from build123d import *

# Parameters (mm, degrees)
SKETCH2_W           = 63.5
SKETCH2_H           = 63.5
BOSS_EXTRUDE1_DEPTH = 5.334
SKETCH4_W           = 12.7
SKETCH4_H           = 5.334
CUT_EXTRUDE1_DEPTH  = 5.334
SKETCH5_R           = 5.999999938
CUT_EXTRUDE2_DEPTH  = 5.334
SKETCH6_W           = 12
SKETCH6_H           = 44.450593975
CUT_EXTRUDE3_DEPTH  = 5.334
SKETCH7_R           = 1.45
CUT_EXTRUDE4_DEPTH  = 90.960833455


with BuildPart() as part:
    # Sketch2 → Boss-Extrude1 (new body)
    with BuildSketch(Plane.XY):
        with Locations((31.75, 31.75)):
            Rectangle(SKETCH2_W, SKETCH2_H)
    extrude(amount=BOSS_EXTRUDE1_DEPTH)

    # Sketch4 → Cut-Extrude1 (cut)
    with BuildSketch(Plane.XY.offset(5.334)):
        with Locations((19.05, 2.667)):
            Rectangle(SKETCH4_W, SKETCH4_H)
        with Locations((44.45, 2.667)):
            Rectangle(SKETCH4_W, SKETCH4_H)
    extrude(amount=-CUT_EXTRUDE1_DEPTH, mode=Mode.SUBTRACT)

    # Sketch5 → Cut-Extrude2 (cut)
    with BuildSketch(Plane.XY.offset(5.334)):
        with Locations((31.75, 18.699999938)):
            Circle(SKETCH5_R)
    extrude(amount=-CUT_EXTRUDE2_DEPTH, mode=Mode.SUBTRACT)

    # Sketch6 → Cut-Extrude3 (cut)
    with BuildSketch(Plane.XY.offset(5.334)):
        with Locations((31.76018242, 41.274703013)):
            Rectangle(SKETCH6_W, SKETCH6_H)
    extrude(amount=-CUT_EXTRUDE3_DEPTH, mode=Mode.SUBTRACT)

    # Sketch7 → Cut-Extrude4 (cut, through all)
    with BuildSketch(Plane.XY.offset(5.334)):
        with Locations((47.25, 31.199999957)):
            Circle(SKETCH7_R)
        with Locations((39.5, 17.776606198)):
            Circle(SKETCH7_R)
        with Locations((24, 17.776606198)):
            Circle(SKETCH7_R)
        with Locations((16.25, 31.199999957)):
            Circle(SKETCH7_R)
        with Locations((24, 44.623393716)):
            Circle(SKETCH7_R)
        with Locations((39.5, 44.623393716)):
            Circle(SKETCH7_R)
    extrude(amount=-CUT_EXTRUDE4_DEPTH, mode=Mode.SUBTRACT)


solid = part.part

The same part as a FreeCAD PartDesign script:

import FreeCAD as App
import Part
import Sketcher
from FreeCAD import Vector
Q = App.Units.Quantity

doc = App.newDocument("Part")
params = doc.addObject("Spreadsheet::Sheet", "Params")
for row, (alias, value) in enumerate([
    ("sketch1_width", "2.5 in"),
    ("pad1_length", "0.21 in"),
    ("sketch2_width", "0.5 in"),
    ("sketch2_height", "0.21 in"),
    ("pocket1_length", "0.21 in"),
    ("pocket2_length", "0.21 in"),
    ("pocket3_length", "0.21 in"),
], start=1):
    params.set(f"A{row}", alias)
    params.set(f"B{row}", "=" + value)
    params.setAlias(f"B{row}", alias)

body = doc.addObject("PartDesign::Body", "Body")

# Sketch on XY plane
sketch1 = body.newObject("Sketcher::SketchObject", "Sketch")
sketch1.AttachmentSupport = (doc.getObject("XY_Plane"), [""])
sketch1.MapMode = "FlatFace"
sketch1.addGeometry([
    Part.LineSegment(Vector(0, 63.5, 0), Vector(0, 0, 0)),
    Part.LineSegment(Vector(0, 0, 0), Vector(63.5, 0, 0)),
    Part.LineSegment(Vector(63.5, 0, 0), Vector(63.5, 63.5, 0)),
    Part.LineSegment(Vector(63.5, 63.5, 0), Vector(0, 63.5, 0)),
], False)
sketch1.addConstraint([
    Sketcher.Constraint("Coincident", 0, 2, 1, 1),
    Sketcher.Constraint("Coincident", 1, 2, 2, 1),
    Sketcher.Constraint("Coincident", 2, 2, 3, 1),
    Sketcher.Constraint("Coincident", 3, 2, 0, 1),
    Sketcher.Constraint("Vertical", 0),
    Sketcher.Constraint("Horizontal", 1),
    Sketcher.Constraint("Vertical", 2),
    Sketcher.Constraint("Horizontal", 3),
    Sketcher.Constraint("Coincident", 0, 2, -1, 1),
    Sketcher.Constraint("Equal", 3, 0),
    Sketcher.Constraint("DistanceX", 1, 1, 1, 2, Q("2.5 in")),
])
sketch1.setExpression("Constraints[10]", "Params.sketch1_width")
pad1 = body.newObject("PartDesign::Pad", "Pad")
pad1.Profile = sketch1
pad1.setExpression("Length", "Params.pad1_length")

# Sketch on XY plane
sketch2 = body.newObject("Sketcher::SketchObject", "Sketch001")
sketch2.AttachmentSupport = (doc.getObject("XY_Plane"), [""])
sketch2.MapMode = "FlatFace"
sketch2.AttachmentOffset = App.Placement(Vector(0, 0, 0.21 * 25.4), App.Rotation())
sketch2.addGeometry([
    Part.LineSegment(Vector(12.7, 5.334, 0), Vector(12.7, 0, 0)),  # 0
    Part.LineSegment(Vector(12.7, 0, 0), Vector(25.4, 0, 0)),  # 1
    Part.LineSegment(Vector(25.4, 0, 0), Vector(25.4, 5.334, 0)),  # 2
    Part.LineSegment(Vector(25.4, 5.334, 0), Vector(12.7, 5.334, 0)),  # 3
    Part.LineSegment(Vector(38.1, 5.334, 0), Vector(38.1, 0, 0)),  # 4
    Part.LineSegment(Vector(38.1, 0, 0), Vector(50.8, 0, 0)),  # 5
    Part.LineSegment(Vector(50.8, 0, 0), Vector(50.8, 5.334, 0)),  # 6
    Part.LineSegment(Vector(50.8, 5.334, 0), Vector(38.1, 5.334, 0)),  # 7
], False)
sketch2.addConstraint([
    Sketcher.Constraint("Coincident", 0, 2, 1, 1),
    Sketcher.Constraint("Coincident", 1, 2, 2, 1),
    Sketcher.Constraint("Coincident", 2, 2, 3, 1),
    Sketcher.Constraint("Coincident", 3, 2, 0, 1),
    Sketcher.Constraint("Coincident", 4, 2, 5, 1),
    Sketcher.Constraint("Coincident", 5, 2, 6, 1),
    Sketcher.Constraint("Coincident", 6, 2, 7, 1),
    Sketcher.Constraint("Coincident", 7, 2, 4, 1),
    Sketcher.Constraint("Vertical", 0),
    Sketcher.Constraint("Horizontal", 1),
    Sketcher.Constraint("Vertical", 2),
    Sketcher.Constraint("Horizontal", 3),
    Sketcher.Constraint("Vertical", 4),
    Sketcher.Constraint("Horizontal", 5),
    Sketcher.Constraint("Vertical", 6),
    Sketcher.Constraint("Horizontal", 7),
    Sketcher.Constraint("PointOnObject", 0, 2, -1),
    Sketcher.Constraint("PointOnObject", 4, 2, -1),
    Sketcher.Constraint("Horizontal", 3, 2, 6, 2),
    Sketcher.Constraint("Equal", 3, 5),
    Sketcher.Constraint("DistanceX", 1, 1, 1, 2, Q("0.5 in")),
    Sketcher.Constraint("DistanceX", -1, 1, 1, 2, Q("1 in")),
    Sketcher.Constraint("DistanceX", -1, 1, 5, 2, Q("2 in")),
    Sketcher.Constraint("DistanceY", 0, 2, 0, 1, Q("0.21 in")),
])
sketch2.setExpression("Constraints[20]", "Params.sketch2_width")
sketch2.setExpression("Constraints[23]", "Params.sketch2_height")
pocket1 = body.newObject("PartDesign::Pocket", "Pocket")
pocket1.Profile = sketch2
pocket1.setExpression("Length", "Params.pocket1_length")

# Sketch on XY plane
sketch3 = body.newObject("Sketcher::SketchObject", "Sketch002")
sketch3.AttachmentSupport = (doc.getObject("XY_Plane"), [""])
sketch3.MapMode = "FlatFace"
sketch3.AttachmentOffset = App.Placement(Vector(0, 0, 0.21 * 25.4), App.Rotation())
sketch3.addGeometry(Part.Circle(Vector(31.75, 18.7, 0), Vector(0, 0, 1), 6), False)
sketch3.addConstraint([
    Sketcher.Constraint("Diameter", 0, Q("12 mm")),
    Sketcher.Constraint("DistanceX", -1, 1, 0, 3, Q("1.25 in")),
    Sketcher.Constraint("DistanceY", -1, 1, 0, 3, Q("18.7 mm")),
])
pocket2 = body.newObject("PartDesign::Pocket", "Pocket001")
pocket2.Profile = sketch3
pocket2.setExpression("Length", "Params.pocket2_length")

# Sketch on XY plane
sketch4 = body.newObject("Sketcher::SketchObject", "Sketch003")
sketch4.AttachmentSupport = (doc.getObject("XY_Plane"), [""])
sketch4.MapMode = "FlatFace"
sketch4.AttachmentOffset = App.Placement(Vector(0, 0, 0.21 * 25.4), App.Rotation())
sketch4.addGeometry([
    Part.LineSegment(Vector(25.760182, 63.5, 0), Vector(25.760182, 19.049406, 0)),
    Part.LineSegment(Vector(25.760182, 19.049406, 0), Vector(37.760182, 19.049406, 0)),
    Part.LineSegment(Vector(37.760182, 19.049406, 0), Vector(37.760182, 63.5, 0)),
    Part.LineSegment(Vector(37.760182, 63.5, 0), Vector(25.760182, 63.5, 0)),
], False)
sketch4.addConstraint([
    Sketcher.Constraint("Coincident", 0, 2, 1, 1),
    Sketcher.Constraint("Coincident", 1, 2, 2, 1),
    Sketcher.Constraint("Coincident", 2, 2, 3, 1),
    Sketcher.Constraint("Coincident", 3, 2, 0, 1),
    Sketcher.Constraint("Vertical", 0),
    Sketcher.Constraint("Horizontal", 1),
    Sketcher.Constraint("Vertical", 2),
    Sketcher.Constraint("Horizontal", 3),
    Sketcher.Constraint("DistanceY", -1, 1, 2, 2, Q("2.5 in")),
    Sketcher.Constraint("DistanceX", 1, 1, 1, 2, Q("12 mm")),
    Sketcher.Constraint("DistanceY", 0, 2, 0, 1, Q("44.450594 mm")),
    Sketcher.Constraint("DistanceX", -1, 1, 0, 2, Q("25.760182 mm")),
])
pocket3 = body.newObject("PartDesign::Pocket", "Pocket002")
pocket3.Profile = sketch4
pocket3.setExpression("Length", "Params.pocket3_length")

# Sketch on XY plane
sketch5 = body.newObject("Sketcher::SketchObject", "Sketch004")
sketch5.AttachmentSupport = (doc.getObject("XY_Plane"), [""])
sketch5.MapMode = "FlatFace"
sketch5.AttachmentOffset = App.Placement(Vector(0, 0, 0.21 * 25.4), App.Rotation())
sketch5.addGeometry([
    Part.Circle(Vector(47.25, 31.2, 0), Vector(0, 0, 1), 1.45),  # 0
    Part.Circle(Vector(39.5, 17.776606, 0), Vector(0, 0, 1), 1.45),  # 1
    Part.Circle(Vector(24, 17.776606, 0), Vector(0, 0, 1), 1.45),  # 2
    Part.Circle(Vector(16.25, 31.2, 0), Vector(0, 0, 1), 1.45),  # 3
    Part.Circle(Vector(24, 44.623394, 0), Vector(0, 0, 1), 1.45),  # 4
    Part.Circle(Vector(39.5, 44.623394, 0), Vector(0, 0, 1), 1.45),  # 5
], False)
sketch5.addConstraint([
    Sketcher.Constraint("Equal", 0, 1),
    Sketcher.Constraint("Equal", 1, 2),
    Sketcher.Constraint("Equal", 2, 3),
    Sketcher.Constraint("Equal", 3, 4),
    Sketcher.Constraint("Equal", 4, 5),
    Sketcher.Constraint("Horizontal", 1, 3, 2, 3),
    Sketcher.Constraint("Horizontal", 0, 3, 3, 3),
    Sketcher.Constraint("Horizontal", 4, 3, 5, 3),
    Sketcher.Constraint("Vertical", 2, 3, 4, 3),
    Sketcher.Constraint("Vertical", 1, 3, 5, 3),
    Sketcher.Constraint("Diameter", 0, Q("2.9 mm")),
    Sketcher.Constraint("DistanceX", -1, 1, 0, 3, Q("47.25 mm")),
    Sketcher.Constraint("DistanceY", -1, 1, 0, 3, Q("31.2 mm")),
    Sketcher.Constraint("DistanceX", -1, 1, 1, 3, Q("39.5 mm")),
    Sketcher.Constraint("DistanceX", -1, 1, 2, 3, Q("24 mm")),
    Sketcher.Constraint("DistanceX", -1, 1, 3, 3, Q("16.25 mm")),
    Sketcher.Constraint("DistanceY", -1, 1, 1, 3, Q("17.776606 mm")),
    Sketcher.Constraint("DistanceY", -1, 1, 4, 3, Q("44.623394 mm")),
])
pocket4 = body.newObject("PartDesign::Pocket", "Pocket003")
pocket4.Profile = sketch5
pocket4.Type = "ThroughAll"

doc.recompute()
